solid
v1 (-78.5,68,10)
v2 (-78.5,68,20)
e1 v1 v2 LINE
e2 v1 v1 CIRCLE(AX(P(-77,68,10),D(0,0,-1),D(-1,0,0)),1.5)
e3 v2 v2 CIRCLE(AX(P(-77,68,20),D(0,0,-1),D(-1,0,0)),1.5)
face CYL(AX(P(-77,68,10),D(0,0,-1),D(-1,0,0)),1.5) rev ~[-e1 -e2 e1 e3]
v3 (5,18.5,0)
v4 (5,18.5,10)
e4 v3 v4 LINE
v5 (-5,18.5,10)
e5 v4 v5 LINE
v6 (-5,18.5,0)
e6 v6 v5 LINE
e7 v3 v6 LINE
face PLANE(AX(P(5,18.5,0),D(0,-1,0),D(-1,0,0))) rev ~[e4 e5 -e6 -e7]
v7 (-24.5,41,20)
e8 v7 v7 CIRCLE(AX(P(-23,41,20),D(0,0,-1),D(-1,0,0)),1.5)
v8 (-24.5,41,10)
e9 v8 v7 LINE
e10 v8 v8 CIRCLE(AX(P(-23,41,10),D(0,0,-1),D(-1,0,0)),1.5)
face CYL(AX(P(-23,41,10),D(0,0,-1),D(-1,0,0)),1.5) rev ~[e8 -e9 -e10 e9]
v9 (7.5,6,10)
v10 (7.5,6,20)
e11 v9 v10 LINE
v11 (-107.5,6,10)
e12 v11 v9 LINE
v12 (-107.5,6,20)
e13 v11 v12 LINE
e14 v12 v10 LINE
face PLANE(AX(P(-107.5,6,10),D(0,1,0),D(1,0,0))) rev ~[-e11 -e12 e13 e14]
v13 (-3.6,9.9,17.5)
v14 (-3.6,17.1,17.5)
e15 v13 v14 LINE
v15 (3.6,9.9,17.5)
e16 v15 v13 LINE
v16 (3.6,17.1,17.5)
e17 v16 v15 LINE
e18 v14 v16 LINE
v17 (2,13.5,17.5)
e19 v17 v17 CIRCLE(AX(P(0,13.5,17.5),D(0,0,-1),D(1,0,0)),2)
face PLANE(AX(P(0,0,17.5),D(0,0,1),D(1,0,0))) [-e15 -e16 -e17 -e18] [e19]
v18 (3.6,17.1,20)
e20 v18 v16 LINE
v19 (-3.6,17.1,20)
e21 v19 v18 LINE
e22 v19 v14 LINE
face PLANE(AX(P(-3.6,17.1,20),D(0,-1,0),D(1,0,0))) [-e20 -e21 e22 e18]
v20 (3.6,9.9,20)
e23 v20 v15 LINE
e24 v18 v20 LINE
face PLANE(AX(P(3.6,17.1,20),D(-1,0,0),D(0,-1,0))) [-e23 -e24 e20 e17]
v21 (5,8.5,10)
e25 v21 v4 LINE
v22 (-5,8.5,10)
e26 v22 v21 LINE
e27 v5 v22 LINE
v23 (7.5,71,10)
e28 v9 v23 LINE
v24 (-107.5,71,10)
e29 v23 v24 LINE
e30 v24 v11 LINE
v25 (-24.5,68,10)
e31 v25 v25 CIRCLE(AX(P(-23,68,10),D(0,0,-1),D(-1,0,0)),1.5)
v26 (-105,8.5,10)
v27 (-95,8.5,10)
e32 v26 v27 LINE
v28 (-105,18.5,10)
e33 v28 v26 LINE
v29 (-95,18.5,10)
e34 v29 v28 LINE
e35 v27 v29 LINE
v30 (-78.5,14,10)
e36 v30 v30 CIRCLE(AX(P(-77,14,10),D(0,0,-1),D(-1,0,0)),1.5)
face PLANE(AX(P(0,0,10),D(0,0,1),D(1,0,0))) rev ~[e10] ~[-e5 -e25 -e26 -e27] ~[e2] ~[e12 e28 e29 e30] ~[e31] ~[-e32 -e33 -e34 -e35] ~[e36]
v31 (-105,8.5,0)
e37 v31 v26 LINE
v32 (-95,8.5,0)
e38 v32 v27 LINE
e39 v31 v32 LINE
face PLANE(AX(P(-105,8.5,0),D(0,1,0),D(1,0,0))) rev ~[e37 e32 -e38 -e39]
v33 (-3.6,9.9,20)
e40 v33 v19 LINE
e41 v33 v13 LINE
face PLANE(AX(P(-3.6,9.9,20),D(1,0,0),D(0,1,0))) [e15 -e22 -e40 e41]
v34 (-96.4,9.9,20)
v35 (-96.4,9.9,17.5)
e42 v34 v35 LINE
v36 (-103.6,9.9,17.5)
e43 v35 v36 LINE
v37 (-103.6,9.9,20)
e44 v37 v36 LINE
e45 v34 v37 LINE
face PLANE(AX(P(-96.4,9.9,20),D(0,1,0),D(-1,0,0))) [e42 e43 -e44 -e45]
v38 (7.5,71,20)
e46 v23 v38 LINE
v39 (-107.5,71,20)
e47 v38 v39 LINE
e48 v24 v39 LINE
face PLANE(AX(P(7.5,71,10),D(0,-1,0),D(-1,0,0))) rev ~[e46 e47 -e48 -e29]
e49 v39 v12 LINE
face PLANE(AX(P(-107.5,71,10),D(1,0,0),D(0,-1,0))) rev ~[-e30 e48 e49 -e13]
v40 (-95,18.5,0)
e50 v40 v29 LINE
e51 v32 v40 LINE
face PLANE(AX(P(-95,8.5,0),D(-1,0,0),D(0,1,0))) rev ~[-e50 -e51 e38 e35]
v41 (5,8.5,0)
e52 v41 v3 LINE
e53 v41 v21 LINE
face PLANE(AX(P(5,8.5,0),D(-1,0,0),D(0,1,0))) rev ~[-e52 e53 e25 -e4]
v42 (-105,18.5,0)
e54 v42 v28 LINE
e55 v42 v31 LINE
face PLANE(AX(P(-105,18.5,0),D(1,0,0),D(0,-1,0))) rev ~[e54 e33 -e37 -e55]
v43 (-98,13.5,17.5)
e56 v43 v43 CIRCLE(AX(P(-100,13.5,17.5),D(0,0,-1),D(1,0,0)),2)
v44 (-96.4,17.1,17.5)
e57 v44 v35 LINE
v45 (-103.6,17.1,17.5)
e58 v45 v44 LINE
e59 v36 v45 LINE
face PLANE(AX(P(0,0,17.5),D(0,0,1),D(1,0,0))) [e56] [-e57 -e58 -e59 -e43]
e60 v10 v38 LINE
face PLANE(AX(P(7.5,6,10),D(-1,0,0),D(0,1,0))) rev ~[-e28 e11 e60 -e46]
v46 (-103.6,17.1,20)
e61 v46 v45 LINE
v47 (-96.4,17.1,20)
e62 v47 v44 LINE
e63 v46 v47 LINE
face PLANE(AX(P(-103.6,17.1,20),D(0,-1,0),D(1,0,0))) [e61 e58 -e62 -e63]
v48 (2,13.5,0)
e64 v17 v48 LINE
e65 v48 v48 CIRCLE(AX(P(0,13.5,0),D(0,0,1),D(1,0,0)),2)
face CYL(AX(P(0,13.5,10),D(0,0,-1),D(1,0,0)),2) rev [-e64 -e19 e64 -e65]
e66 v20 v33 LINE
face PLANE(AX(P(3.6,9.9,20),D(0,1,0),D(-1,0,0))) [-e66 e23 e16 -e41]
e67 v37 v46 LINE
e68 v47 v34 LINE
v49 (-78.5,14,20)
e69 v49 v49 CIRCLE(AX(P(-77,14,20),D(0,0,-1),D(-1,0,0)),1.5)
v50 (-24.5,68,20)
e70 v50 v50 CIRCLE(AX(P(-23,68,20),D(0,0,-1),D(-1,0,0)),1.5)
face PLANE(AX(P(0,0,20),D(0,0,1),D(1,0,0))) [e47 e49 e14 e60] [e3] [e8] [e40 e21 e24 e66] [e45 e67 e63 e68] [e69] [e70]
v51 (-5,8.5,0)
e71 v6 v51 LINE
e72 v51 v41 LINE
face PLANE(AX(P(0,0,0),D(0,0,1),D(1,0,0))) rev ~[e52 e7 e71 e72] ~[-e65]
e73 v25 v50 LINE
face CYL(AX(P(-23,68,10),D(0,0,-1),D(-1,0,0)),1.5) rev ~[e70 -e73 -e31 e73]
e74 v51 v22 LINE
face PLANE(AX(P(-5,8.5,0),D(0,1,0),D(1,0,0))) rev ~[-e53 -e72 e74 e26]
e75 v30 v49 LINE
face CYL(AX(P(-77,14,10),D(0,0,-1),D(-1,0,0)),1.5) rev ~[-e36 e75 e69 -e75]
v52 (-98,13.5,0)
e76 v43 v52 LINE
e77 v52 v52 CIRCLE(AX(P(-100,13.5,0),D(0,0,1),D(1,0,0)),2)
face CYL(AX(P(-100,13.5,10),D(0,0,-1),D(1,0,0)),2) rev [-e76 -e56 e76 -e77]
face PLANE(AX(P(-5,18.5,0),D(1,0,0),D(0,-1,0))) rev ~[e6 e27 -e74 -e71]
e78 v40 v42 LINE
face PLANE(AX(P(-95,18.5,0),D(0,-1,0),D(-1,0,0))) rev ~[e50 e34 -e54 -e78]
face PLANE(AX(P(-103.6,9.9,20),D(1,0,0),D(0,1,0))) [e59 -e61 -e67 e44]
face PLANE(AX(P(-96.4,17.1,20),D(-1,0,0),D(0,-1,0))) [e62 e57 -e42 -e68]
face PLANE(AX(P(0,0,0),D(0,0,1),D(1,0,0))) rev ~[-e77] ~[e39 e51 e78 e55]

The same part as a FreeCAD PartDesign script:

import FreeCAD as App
import Part
import Sketcher
Q = App.Units.Quantity

doc = App.newDocument("Part")
body = doc.addObject("PartDesign::Body", "Body")
body.AllowCompound = True

# Sketch on XY plane
sketch1 = body.newObject("Sketcher::SketchObject", "Sketch")
sketch1.AttachmentSupport = (doc.getObject("XY_Plane"), [""])
sketch1.MapMode = "FlatFace"
sketch1.addGeometry([
    Part.LineSegment(App.Vector(-105, 18.5, 0), App.Vector(-105, 8.5, 0)),  # 0
    Part.LineSegment(App.Vector(-105, 8.5, 0), App.Vector(-95, 8.5, 0)),  # 1
    Part.LineSegment(App.Vector(-95, 8.5, 0), App.Vector(-95, 18.5, 0)),  # 2
    Part.LineSegment(App.Vector(-95, 18.5, 0), App.Vector(-105, 18.5, 0)),  # 3
    Part.Circle(App.Vector(-100, 13.5, 0), App.Vector(0, 0, 1), 2),  # 4
    Part.LineSegment(App.Vector(-5, 18.5, 0), App.Vector(-5, 8.5, 0)),  # 5
    Part.LineSegment(App.Vector(-5, 8.5, 0), App.Vector(5, 8.5, 0)),  # 6
    Part.LineSegment(App.Vector(5, 8.5, 0), App.Vector(5, 18.5, 0)),  # 7
    Part.LineSegment(App.Vector(5, 18.5, 0), App.Vector(-5, 18.5, 0)),  # 8
    Part.Circle(App.Vector(0, 13.5, 0), App.Vector(0, 0, 1), 2),  # 9
], False)
sketch1.addConstraint([
    Sketcher.Constraint("Coincident", 0, 2, 1, 1),
    Sketcher.Constraint("Coincident", 1, 2, 2, 1),
    Sketcher.Constraint("Coincident", 2, 2, 3, 1),
    Sketcher.Constraint("Coincident", 3, 2, 0, 1),
    Sketcher.Constraint("Coincident", 5, 2, 6, 1),
    Sketcher.Constraint("Coincident", 6, 2, 7, 1),
    Sketcher.Constraint("Coincident", 7, 2, 8, 1),
    Sketcher.Constraint("Coincident", 8, 2, 5, 1),
    Sketcher.Constraint("Vertical", 0),
    Sketcher.Constraint("Horizontal", 1),
    Sketcher.Constraint("Vertical", 2),
    Sketcher.Constraint("Horizontal", 3),
    Sketcher.Constraint("Vertical", 5),
    Sketcher.Constraint("Horizontal", 6),
    Sketcher.Constraint("Vertical", 7),
    Sketcher.Constraint("Horizontal", 8),
    Sketcher.Constraint("Equal", 4, 9),
    Sketcher.Constraint("PointOnObject", 9, 3, -2),
    Sketcher.Constraint("Horizontal", 4, 3, 9, 3),
    Sketcher.Constraint("Horizontal", 1, 2, 5, 2),
    Sketcher.Constraint("Horizontal", 3, 2, 7, 2),
    Sketcher.Constraint("Equal", 3, 6),
    Sketcher.Constraint("Equal", 8, 0),
    Sketcher.Constraint("DistanceX", 1, 1, 1, 2, Q("10 mm")),
    Sketcher.Constraint("Diameter", 4, Q("4 mm")),
    Sketcher.Constraint("DistanceX", 5, 2, -1, 1, Q("5 mm")),
    Sketcher.Constraint("DistanceX", 0, 2, 4, 3, Q("5 mm")),
    Sketcher.Constraint("DistanceY", 0, 2, 4, 3, Q("5 mm")),
    Sketcher.Constraint("DistanceX", 1, 2, 5, 2, Q("90 mm")),
    Sketcher.Constraint("DistanceY", -1, 1, 4, 3, Q("13.5 mm")),
])
pad1 = body.newObject("PartDesign::Pad", "Pad")
pad1.Profile = sketch1
pad1.Length = 10

# Sketch on XY plane
sketch2 = body.newObject("Sketcher::SketchObject", "Sketch001")
sketch2.AttachmentSupport = (doc.getObject("XY_Plane"), [""])
sketch2.MapMode = "FlatFace"
sketch2.AttachmentOffset = App.Placement(App.Vector(0, 0, 10), App.Rotation())
sketch2.addGeometry([
    Part.LineSegment(App.Vector(-107.5, 71, 0), App.Vector(-107.5, 6, 0)),  # 0
    Part.LineSegment(App.Vector(-107.5, 6, 0), App.Vector(7.5, 6, 0)),  # 1
    Part.LineSegment(App.Vector(7.5, 6, 0), App.Vector(7.5, 71, 0)),  # 2
    Part.LineSegment(App.Vector(7.5, 71, 0), App.Vector(-107.5, 71, 0)),  # 3
    Part.Circle(App.Vector(-100, 13.5, 0), App.Vector(0, 0, 1), 2),  # 4
    Part.Circle(App.Vector(0, 13.5, 0), App.Vector(0, 0, 1), 2),  # 5
], False)
sketch2.addConstraint([
    Sketcher.Constraint("Coincident", 0, 2, 1, 1),
    Sketcher.Constraint("Coincident", 1, 2, 2, 1),
    Sketcher.Constraint("Coincident", 2, 2, 3, 1),
    Sketcher.Constraint("Coincident", 3, 2, 0, 1),
    Sketcher.Constraint("Vertical", 0),
    Sketcher.Constraint("Horizontal", 1),
    Sketcher.Constraint("Vertical", 2),
    Sketcher.Constraint("Horizontal", 3),
    Sketcher.Constraint("Equal", 4, 5),
    Sketcher.Constraint("PointOnObject", 5, 3, -2),
    Sketcher.Constraint("Horizontal", 4, 3, 5, 3),
    Sketcher.Constraint("DistanceX", 1, 1, 1, 2, Q("115 mm")),
    Sketcher.Constraint("DistanceY", 0, 2, 0, 1, Q("65 mm")),
    Sketcher.Constraint("Diameter", 4, Q("4 mm")),
    Sketcher.Constraint("DistanceX", 4, 3, -1, 1, Q("100 mm")),
    Sketcher.Constraint("DistanceY", -1, 1, 0, 2, Q("6 mm")),
    Sketcher.Constraint("DistanceY", -1, 1, 4, 3, Q("13.5 mm")),
    Sketcher.Constraint("DistanceX", 0, 2, -1, 1, Q("107.5 mm")),
])
pad2 = body.newObject("PartDesign::Pad", "Pad001")
pad2.Profile = sketch2
pad2.Length = 10

# Sketch on XY plane
sketch3 = body.newObject("Sketcher::SketchObject", "Sketch002")
sketch3.AttachmentSupport = (doc.getObject("XY_Plane"), [""])
sketch3.MapMode = "FlatFace"
sketch3.AttachmentOffset = App.Placement(App.Vector(0, 0, 20), App.Rotation())
sketch3.addGeometry([
    Part.LineSegment(App.Vector(-96, 17, 0), App.Vector(-104, 17, 0)),  # 0
    Part.LineSegment(App.Vector(-104, 17, 0), App.Vector(-104, 10, 0)),  # 1
    Part.LineSegment(App.Vector(-104, 10, 0), App.Vector(-96, 10, 0)),  # 2
    Part.LineSegment(App.Vector(-96, 10, 0), App.Vector(-96, 17, 0)),  # 3
    Part.LineSegment(App.Vector(4, 17, 0), App.Vector(-4, 17, 0)),  # 4
    Part.LineSegment(App.Vector(-4, 17, 0), App.Vector(-4, 10, 0)),  # 5
    Part.LineSegment(App.Vector(-4, 10, 0), App.Vector(4, 10, 0)),  # 6
    Part.LineSegment(App.Vector(4, 10, 0), App.Vector(4, 17, 0)),  # 7
], False)
sketch3.addConstraint([
    Sketcher.Constraint("Coincident", 0, 2, 1, 1),
    Sketcher.Constraint("Coincident", 1, 2, 2, 1),
    Sketcher.Constraint("Coincident", 2, 2, 3, 1),
    Sketcher.Constraint("Coincident", 3, 2, 0, 1),
    Sketcher.Constraint("Coincident", 4, 2, 5, 1),
    Sketcher.Constraint("Coincident", 5, 2, 6, 1),
    Sketcher.Constraint("Coincident", 6, 2, 7, 1),
    Sketcher.Constraint("Coincident", 7, 2, 4, 1),
    Sketcher.Constraint("Horizontal", 0),
    Sketcher.Constraint("Vertical", 1),
    Sketcher.Constraint("Horizontal", 2),
    Sketcher.Constraint("Vertical", 3),
    Sketcher.Constraint("Horizontal", 4),
    Sketcher.Constraint("Vertical", 5),
    Sketcher.Constraint("Horizontal", 6),
    Sketcher.Constraint("Vertical", 7),
    Sketcher.Constraint("Horizontal", 3, 2, 4, 2),
    Sketcher.Constraint("Horizontal", 2, 2, 5, 2),
    Sketcher.Constraint("Equal", 2, 4),
    Sketcher.Constraint("Equal", 6, 1),
    Sketcher.Constraint("DistanceX", 0, 2, 0, 1, Q("7.2 mm")),
    Sketcher.Constraint("DistanceX", 0, 2, 4, 2, Q("100 mm")),
    Sketcher.Constraint("DistanceX", 0, 2, -1, 1, Q("103.6 mm")),
    Sketcher.Constraint("DistanceY", -1, 1, 0, 2, Q("17.1 mm")),
])
pocket1 = body.newObject("PartDesign::Pocket", "Pocket")
pocket1.Profile = sketch3
pocket1.Length = 2.5

# Sketch on XY plane
sketch4 = body.newObject("Sketcher::SketchObject", "Sketch003")
sketch4.AttachmentSupport = (doc.getObject("XY_Plane"), [""])
sketch4.MapMode = "FlatFace"
sketch4.AttachmentOffset = App.Placement(App.Vector(0, 0, 10), App.Rotation())
sketch4.addGeometry([
    Part.Circle(App.Vector(-77, 68, 0), App.Vector(0, 0, 1), 1.5),
    Part.Circle(App.Vector(-77, 14, 0), App.Vector(0, 0, 1), 1.5),
    Part.Circle(App.Vector(-23, 68, 0), App.Vector(0, 0, 1), 1.5),
    Part.Circle(App.Vector(-23, 41, 0), App.Vector(0, 0, 1), 1.5),
], False)
sketch4.addConstraint([
    Sketcher.Constraint("Equal", 0, 1),
    Sketcher.Constraint("Equal", 1, 2),
    Sketcher.Constraint("Equal", 2, 3),
    Sketcher.Constraint("Horizontal", 0, 3, 2, 3),
    Sketcher.Constraint("Vertical", 0, 3, 1, 3),
    Sketcher.Constraint("Vertical", 2, 3, 3, 3),
    Sketcher.Constraint("Diameter", 0, Q("3 mm")),
    Sketcher.Constraint("DistanceY", 1, 3, 0, 3, Q("54 mm")),
    Sketcher.Constraint("DistanceX", 0, 3, 2, 3, Q("54 mm")),
    Sketcher.Constraint("DistanceY", 3, 3, 2, 3, Q("27 mm")),
    Sketcher.Constraint("DistanceX", 0, 3, -1, 1, Q("77 mm")),
    Sketcher.Constraint("DistanceY", -1, 1, 0, 3, Q("68 mm")),
])
pocket2 = body.newObject("PartDesign::Pocket", "Pocket001")
pocket2.Profile = sketch4
pocket2.Length = 10
pocket2.Reversed = True

doc.recompute()
